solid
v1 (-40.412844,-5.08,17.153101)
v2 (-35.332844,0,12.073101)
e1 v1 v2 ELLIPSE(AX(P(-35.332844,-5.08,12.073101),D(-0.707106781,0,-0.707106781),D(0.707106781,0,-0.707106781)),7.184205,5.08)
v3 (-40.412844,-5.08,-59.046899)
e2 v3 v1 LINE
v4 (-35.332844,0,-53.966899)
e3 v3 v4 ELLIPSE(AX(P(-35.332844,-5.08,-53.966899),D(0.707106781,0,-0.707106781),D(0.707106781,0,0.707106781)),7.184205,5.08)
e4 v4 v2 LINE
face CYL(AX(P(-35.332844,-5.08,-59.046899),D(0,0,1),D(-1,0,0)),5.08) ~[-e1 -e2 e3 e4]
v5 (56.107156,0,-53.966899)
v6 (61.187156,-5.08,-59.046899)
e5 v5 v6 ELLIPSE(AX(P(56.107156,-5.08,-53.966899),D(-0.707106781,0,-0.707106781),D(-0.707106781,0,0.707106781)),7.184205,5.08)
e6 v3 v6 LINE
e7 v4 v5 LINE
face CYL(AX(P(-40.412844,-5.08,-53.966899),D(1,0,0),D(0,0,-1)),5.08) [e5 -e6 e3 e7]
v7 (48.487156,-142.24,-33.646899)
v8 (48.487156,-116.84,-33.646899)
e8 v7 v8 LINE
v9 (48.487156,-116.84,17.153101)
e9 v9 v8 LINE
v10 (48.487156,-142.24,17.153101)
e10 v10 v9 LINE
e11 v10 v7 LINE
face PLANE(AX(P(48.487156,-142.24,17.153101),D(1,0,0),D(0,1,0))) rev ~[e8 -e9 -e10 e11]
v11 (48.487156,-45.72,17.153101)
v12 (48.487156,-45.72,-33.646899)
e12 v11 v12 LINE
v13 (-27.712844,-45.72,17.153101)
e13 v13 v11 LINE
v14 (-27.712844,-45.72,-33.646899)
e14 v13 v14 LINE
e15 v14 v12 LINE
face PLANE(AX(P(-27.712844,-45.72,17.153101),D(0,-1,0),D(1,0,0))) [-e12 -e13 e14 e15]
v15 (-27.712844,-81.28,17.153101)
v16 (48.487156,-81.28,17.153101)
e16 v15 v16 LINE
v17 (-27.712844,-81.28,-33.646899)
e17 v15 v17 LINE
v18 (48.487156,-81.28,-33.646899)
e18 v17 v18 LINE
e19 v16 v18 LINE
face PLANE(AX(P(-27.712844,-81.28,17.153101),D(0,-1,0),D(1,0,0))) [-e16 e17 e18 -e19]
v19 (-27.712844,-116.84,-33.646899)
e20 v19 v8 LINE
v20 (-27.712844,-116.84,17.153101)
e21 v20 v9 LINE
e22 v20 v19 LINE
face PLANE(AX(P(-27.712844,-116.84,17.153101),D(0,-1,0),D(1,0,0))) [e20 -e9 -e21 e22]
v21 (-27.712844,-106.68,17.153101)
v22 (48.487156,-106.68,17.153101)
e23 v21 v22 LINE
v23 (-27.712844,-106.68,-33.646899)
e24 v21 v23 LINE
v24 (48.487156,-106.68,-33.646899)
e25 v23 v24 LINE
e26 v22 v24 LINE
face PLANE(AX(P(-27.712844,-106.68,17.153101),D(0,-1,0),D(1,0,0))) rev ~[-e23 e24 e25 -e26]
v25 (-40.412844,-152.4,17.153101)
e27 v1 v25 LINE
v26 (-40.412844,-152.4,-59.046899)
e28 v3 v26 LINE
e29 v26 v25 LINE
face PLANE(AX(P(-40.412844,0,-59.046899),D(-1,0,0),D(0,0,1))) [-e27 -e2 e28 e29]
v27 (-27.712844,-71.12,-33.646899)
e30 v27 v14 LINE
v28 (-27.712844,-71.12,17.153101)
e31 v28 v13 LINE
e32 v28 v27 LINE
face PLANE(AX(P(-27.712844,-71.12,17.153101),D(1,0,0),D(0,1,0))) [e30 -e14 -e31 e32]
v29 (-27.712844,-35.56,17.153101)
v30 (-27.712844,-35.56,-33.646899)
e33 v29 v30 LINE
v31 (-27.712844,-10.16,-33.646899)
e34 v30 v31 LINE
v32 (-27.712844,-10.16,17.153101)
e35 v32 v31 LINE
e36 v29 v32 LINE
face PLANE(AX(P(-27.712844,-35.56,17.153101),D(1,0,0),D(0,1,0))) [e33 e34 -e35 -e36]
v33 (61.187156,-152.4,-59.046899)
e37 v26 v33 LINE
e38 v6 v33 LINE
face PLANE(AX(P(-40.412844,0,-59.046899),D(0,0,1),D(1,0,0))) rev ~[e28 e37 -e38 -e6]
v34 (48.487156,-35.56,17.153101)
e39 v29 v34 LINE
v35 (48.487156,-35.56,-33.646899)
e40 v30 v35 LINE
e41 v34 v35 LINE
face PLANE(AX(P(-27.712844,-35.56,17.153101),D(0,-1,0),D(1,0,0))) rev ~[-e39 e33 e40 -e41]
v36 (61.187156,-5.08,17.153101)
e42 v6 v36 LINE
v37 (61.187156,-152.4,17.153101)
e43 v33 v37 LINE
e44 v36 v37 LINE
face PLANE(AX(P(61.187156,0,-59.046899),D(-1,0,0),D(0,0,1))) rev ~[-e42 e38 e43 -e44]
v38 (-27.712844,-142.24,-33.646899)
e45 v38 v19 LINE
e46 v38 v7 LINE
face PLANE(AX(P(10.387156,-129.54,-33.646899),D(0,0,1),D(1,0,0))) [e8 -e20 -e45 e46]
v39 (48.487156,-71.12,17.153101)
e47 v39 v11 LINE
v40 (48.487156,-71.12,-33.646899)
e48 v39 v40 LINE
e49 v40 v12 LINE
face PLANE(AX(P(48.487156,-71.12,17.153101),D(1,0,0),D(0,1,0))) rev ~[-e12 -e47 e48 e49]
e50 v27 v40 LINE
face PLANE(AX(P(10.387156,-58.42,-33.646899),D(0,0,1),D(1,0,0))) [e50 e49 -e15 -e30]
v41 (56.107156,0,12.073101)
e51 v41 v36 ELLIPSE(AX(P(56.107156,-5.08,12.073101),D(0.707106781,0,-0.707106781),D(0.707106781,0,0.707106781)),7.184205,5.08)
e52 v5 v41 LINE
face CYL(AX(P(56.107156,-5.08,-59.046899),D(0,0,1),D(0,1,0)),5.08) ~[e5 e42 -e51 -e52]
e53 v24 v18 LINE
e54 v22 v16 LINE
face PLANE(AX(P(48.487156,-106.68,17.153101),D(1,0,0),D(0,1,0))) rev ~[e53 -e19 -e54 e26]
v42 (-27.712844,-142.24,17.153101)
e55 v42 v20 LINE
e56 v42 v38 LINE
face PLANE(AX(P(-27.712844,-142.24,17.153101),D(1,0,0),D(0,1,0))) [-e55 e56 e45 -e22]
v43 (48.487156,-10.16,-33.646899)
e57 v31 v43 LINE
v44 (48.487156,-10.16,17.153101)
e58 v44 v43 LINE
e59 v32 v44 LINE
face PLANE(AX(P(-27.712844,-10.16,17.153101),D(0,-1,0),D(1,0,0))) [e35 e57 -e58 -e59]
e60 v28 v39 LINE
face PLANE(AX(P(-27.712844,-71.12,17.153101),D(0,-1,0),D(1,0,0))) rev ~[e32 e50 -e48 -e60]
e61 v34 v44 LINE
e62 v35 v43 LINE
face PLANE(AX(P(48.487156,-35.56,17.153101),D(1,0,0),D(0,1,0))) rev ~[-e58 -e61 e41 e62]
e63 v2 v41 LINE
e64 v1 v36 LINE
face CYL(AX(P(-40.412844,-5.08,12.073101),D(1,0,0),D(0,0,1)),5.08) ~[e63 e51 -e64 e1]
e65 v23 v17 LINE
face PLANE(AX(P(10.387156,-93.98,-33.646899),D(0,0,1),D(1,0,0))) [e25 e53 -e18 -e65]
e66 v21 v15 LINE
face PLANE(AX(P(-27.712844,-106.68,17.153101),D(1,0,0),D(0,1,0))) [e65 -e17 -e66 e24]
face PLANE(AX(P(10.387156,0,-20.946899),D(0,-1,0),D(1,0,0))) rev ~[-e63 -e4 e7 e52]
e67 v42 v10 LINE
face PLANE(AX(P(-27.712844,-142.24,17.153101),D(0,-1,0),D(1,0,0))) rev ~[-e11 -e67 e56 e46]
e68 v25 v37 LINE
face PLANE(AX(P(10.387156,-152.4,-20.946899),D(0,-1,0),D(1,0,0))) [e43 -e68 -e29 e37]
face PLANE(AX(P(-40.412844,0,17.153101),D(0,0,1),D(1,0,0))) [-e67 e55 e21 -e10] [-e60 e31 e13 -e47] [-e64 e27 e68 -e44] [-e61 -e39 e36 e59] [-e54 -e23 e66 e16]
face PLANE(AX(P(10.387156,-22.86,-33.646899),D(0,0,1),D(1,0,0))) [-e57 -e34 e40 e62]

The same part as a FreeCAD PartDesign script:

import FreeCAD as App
import Part
import Sketcher
Q = App.Units.Quantity


def edges_at(feature, points):
    """Names of the edges that pass closest to the given points."""
    edges = feature.Shape.Edges
    near = lambda p: min(range(len(edges)), key=lambda i: edges[i].distToShape(Part.Vertex(*p))[0])
    return sorted({f"Edge{near(p) + 1}" for p in points})

doc = App.newDocument("Part")
body = doc.addObject("PartDesign::Body", "Body")

sketch1 = body.newObject("Sketcher::SketchObject", "Sketch")
sketch1.AttachmentSupport = (doc.getObject("XZ_Plane"), [""])
sketch1.MapMode = "FlatFace"
sketch1.addGeometry(Part.LineSegment(App.Vector(-40, 17, 0), App.Vector(-40, -59, 0)), False)
sketch1.addGeometry(Part.LineSegment(App.Vector(-40, -59, 0), App.Vector(61, -59, 0)), False)
sketch1.addGeometry(Part.LineSegment(App.Vector(61, -59, 0), App.Vector(61, 17, 0)), False)
sketch1.addGeometry(Part.LineSegment(App.Vector(61, 17, 0), App.Vector(-40, 17, 0)), False)
sketch1.addConstraint(Sketcher.Constraint("Coincident", 0, 2, 1, 1))
sketch1.addConstraint(Sketcher.Constraint("Coincident", 1, 2, 2, 1))
sketch1.addConstraint(Sketcher.Constraint("Coincident", 2, 2, 3, 1))
sketch1.addConstraint(Sketcher.Constraint("Coincident", 3, 2, 0, 1))
sketch1.addConstraint(Sketcher.Constraint("Vertical", 0))
sketch1.addConstraint(Sketcher.Constraint("Horizontal", 1))
sketch1.addConstraint(Sketcher.Constraint("Vertical", 2))
sketch1.addConstraint(Sketcher.Constraint("Horizontal", 3))
sketch1.addConstraint(Sketcher.Constraint("DistanceX", 1, 1, 1, 2, Q("4 in")))
sketch1.addConstraint(Sketcher.Constraint("DistanceY", 0, 2, 0, 1, Q("3 in")))
sketch1.addConstraint(Sketcher.Constraint("DistanceY", 0, 2, -1, 1, Q("59.046899 mm")))
sketch1.addConstraint(Sketcher.Constraint("DistanceX", 0, 2, -1, 1, Q("40.412844 mm")))
pad1 = body.newObject("PartDesign::Pad", "Pad")
pad1.Profile = sketch1
pad1.Length = Q("6 in")

sketch2 = body.newObject("Sketcher::SketchObject", "Sketch001")
sketch2.AttachmentSupport = (doc.getObject("XY_Plane"), [""])
sketch2.MapMode = "FlatFace"
sketch2.AttachmentOffset = App.Placement(App.Vector(0, 0, 17.153101), App.Rotation())
sketch2.addGeometry(Part.LineSegment(App.Vector(-28, -10, 0), App.Vector(-28, -36, 0)), False)
sketch2.addGeometry(Part.LineSegment(App.Vector(-28, -36, 0), App.Vector(48, -36, 0)), False)
sketch2.addGeometry(Part.LineSegment(App.Vector(48, -36, 0), App.Vector(48, -10, 0)), False)
sketch2.addGeometry(Part.LineSegment(App.Vector(48, -10, 0), App.Vector(-28, -10, 0)), False)
sketch2.addGeometry(Part.LineSegment(App.Vector(-28, -46, 0), App.Vector(-28, -71, 0)), False)
sketch2.addGeometry(Part.LineSegment(App.Vector(-28, -71, 0), App.Vector(48, -71, 0)), False)
sketch2.addGeometry(Part.LineSegment(App.Vector(48, -71, 0), App.Vector(48, -46, 0)), False)
sketch2.addGeometry(Part.LineSegment(App.Vector(48, -46, 0), App.Vector(-28, -46, 0)), False)
sketch2.addGeometry(Part.LineSegment(App.Vector(-28, -81, 0), App.Vector(-28, -107, 0)), False)
sketch2.addGeometry(Part.LineSegment(App.Vector(-28, -107, 0), App.Vector(48, -107, 0)), False)
sketch2.addGeometry(Part.LineSegment(App.Vector(48, -107, 0), App.Vector(48, -81, 0)), False)
sketch2.addGeometry(Part.LineSegment(App.Vector(48, -81, 0), App.Vector(-28, -81, 0)), False)
sketch2.addGeometry(Part.LineSegment(App.Vector(-28, -117, 0), App.Vector(-28, -142, 0)), False)
sketch2.addGeometry(Part.LineSegment(App.Vector(-28, -142, 0), App.Vector(48, -142, 0)), False)
sketch2.addGeometry(Part.LineSegment(App.Vector(48, -142, 0), App.Vector(48, -117, 0)), False)
sketch2.addGeometry(Part.LineSegment(App.Vector(48, -117, 0), App.Vector(-28, -117, 0)), False)
sketch2.addConstraint(Sketcher.Constraint("Coincident", 0, 2, 1, 1))
sketch2.addConstraint(Sketcher.Constraint("Coincident", 1, 2, 2, 1))
sketch2.addConstraint(Sketcher.Constraint("Coincident", 2, 2, 3, 1))
sketch2.addConstraint(Sketcher.Constraint("Coincident", 3, 2, 0, 1))
sketch2.addConstraint(Sketcher.Constraint("Coincident", 4, 2, 5, 1))
sketch2.addConstraint(Sketcher.Constraint("Coincident", 5, 2, 6, 1))
sketch2.addConstraint(Sketcher.Constraint("Coincident", 6, 2, 7, 1))
sketch2.addConstraint(Sketcher.Constraint("Coincident", 7, 2, 4, 1))
sketch2.addConstraint(Sketcher.Constraint("Coincident", 8, 2, 9, 1))
sketch2.addConstraint(Sketcher.Constraint("Coincident", 9, 2, 10, 1))
sketch2.addConstraint(Sketcher.Constraint("Coincident", 10, 2, 11, 1))
sketch2.addConstraint(Sketcher.Constraint("Coincident", 11, 2, 8, 1))
sketch2.addConstraint(Sketcher.Constraint("Coincident", 12, 2, 13, 1))
sketch2.addConstraint(Sketcher.Constraint("Coincident", 13, 2, 14, 1))
sketch2.addConstraint(Sketcher.Constraint("Coincident", 14, 2, 15, 1))
sketch2.addConstraint(Sketcher.Constraint("Coincident", 15, 2, 12, 1))
sketch2.addConstraint(Sketcher.Constraint("Vertical", 0))
sketch2.addConstraint(Sketcher.Constraint("Horizontal", 1))
sketch2.addConstraint(Sketcher.Constraint("Vertical", 2))
sketch2.addConstraint(Sketcher.Constraint("Horizontal", 3))
sketch2.addConstraint(Sketcher.Constraint("Vertical", 4))
sketch2.addConstraint(Sketcher.Constraint("Horizontal", 5))
sketch2.addConstraint(Sketcher.Constraint("Vertical", 6))
sketch2.addConstraint(Sketcher.Constraint("Horizontal", 7))
sketch2.addConstraint(Sketcher.Constraint("Vertical", 8))
sketch2.addConstraint(Sketcher.Constraint("Horizontal", 9))
sketch2.addConstraint(Sketcher.Constraint("Vertical", 10))
sketch2.addConstraint(Sketcher.Constraint("Horizontal", 11))
sketch2.addConstraint(Sketcher.Constraint("Vertical", 12))
sketch2.addConstraint(Sketcher.Constraint("Horizontal", 13))
sketch2.addConstraint(Sketcher.Constraint("Vertical", 14))
sketch2.addConstraint(Sketcher.Constraint("Horizontal", 15))
sketch2.addConstraint(Sketcher.Constraint("Vertical", 3, 2, 4, 2))
sketch2.addConstraint(Sketcher.Constraint("Vertical", 2, 2, 5, 2))
sketch2.addConstraint(Sketcher.Constraint("Vertical", 7, 2, 8, 2))
sketch2.addConstraint(Sketcher.Constraint("Vertical", 6, 2, 9, 2))
sketch2.addConstraint(Sketcher.Constraint("Vertical", 11, 2, 12, 2))
sketch2.addConstraint(Sketcher.Constraint("Vertical", 10, 2, 13, 2))
sketch2.addConstraint(Sketcher.Constraint("Equal", 2, 4))
sketch2.addConstraint(Sketcher.Constraint("Equal", 6, 8))
sketch2.addConstraint(Sketcher.Constraint("Equal", 10, 12))
sketch2.addConstraint(Sketcher.Constraint("DistanceX", 1, 1, 1, 2, Q("3 in")))
sketch2.addConstraint(Sketcher.Constraint("DistanceY", 0, 2, 0, 1, Q("1 in")))
sketch2.addConstraint(Sketcher.Constraint("DistanceY", 0, 2, -1, 1, Q("1.4 in")))
sketch2.addConstraint(Sketcher.Constraint("DistanceY", 4, 2, -1, 1, Q("2.8 in")))
sketch2.addConstraint(Sketcher.Constraint("DistanceY", 8, 2, -1, 1, Q("4.2 in")))
sketch2.addConstraint(Sketcher.Constraint("DistanceY", 12, 2, -1, 1, Q("5.6 in")))
sketch2.addConstraint(Sketcher.Constraint("DistanceX", 0, 2, -1, 1, Q("27.712844 mm")))
pocket1 = body.newObject("PartDesign::Pocket", "Pocket")
pocket1.Profile = sketch2
pocket1.Length = Q("2 in")
doc.recompute()

fillet = body.newObject("PartDesign::Fillet", "Fillet")
fillet.Base = (pocket1, edges_at(pocket1, [
    (61.187, 0, -20.947),
    (10.387, 0, -59.047),
    (10.387, 0, 17.153),
    (-40.413, 0, -20.947),
]))
fillet.Radius = Q("0.2 in")

doc.recompute()
